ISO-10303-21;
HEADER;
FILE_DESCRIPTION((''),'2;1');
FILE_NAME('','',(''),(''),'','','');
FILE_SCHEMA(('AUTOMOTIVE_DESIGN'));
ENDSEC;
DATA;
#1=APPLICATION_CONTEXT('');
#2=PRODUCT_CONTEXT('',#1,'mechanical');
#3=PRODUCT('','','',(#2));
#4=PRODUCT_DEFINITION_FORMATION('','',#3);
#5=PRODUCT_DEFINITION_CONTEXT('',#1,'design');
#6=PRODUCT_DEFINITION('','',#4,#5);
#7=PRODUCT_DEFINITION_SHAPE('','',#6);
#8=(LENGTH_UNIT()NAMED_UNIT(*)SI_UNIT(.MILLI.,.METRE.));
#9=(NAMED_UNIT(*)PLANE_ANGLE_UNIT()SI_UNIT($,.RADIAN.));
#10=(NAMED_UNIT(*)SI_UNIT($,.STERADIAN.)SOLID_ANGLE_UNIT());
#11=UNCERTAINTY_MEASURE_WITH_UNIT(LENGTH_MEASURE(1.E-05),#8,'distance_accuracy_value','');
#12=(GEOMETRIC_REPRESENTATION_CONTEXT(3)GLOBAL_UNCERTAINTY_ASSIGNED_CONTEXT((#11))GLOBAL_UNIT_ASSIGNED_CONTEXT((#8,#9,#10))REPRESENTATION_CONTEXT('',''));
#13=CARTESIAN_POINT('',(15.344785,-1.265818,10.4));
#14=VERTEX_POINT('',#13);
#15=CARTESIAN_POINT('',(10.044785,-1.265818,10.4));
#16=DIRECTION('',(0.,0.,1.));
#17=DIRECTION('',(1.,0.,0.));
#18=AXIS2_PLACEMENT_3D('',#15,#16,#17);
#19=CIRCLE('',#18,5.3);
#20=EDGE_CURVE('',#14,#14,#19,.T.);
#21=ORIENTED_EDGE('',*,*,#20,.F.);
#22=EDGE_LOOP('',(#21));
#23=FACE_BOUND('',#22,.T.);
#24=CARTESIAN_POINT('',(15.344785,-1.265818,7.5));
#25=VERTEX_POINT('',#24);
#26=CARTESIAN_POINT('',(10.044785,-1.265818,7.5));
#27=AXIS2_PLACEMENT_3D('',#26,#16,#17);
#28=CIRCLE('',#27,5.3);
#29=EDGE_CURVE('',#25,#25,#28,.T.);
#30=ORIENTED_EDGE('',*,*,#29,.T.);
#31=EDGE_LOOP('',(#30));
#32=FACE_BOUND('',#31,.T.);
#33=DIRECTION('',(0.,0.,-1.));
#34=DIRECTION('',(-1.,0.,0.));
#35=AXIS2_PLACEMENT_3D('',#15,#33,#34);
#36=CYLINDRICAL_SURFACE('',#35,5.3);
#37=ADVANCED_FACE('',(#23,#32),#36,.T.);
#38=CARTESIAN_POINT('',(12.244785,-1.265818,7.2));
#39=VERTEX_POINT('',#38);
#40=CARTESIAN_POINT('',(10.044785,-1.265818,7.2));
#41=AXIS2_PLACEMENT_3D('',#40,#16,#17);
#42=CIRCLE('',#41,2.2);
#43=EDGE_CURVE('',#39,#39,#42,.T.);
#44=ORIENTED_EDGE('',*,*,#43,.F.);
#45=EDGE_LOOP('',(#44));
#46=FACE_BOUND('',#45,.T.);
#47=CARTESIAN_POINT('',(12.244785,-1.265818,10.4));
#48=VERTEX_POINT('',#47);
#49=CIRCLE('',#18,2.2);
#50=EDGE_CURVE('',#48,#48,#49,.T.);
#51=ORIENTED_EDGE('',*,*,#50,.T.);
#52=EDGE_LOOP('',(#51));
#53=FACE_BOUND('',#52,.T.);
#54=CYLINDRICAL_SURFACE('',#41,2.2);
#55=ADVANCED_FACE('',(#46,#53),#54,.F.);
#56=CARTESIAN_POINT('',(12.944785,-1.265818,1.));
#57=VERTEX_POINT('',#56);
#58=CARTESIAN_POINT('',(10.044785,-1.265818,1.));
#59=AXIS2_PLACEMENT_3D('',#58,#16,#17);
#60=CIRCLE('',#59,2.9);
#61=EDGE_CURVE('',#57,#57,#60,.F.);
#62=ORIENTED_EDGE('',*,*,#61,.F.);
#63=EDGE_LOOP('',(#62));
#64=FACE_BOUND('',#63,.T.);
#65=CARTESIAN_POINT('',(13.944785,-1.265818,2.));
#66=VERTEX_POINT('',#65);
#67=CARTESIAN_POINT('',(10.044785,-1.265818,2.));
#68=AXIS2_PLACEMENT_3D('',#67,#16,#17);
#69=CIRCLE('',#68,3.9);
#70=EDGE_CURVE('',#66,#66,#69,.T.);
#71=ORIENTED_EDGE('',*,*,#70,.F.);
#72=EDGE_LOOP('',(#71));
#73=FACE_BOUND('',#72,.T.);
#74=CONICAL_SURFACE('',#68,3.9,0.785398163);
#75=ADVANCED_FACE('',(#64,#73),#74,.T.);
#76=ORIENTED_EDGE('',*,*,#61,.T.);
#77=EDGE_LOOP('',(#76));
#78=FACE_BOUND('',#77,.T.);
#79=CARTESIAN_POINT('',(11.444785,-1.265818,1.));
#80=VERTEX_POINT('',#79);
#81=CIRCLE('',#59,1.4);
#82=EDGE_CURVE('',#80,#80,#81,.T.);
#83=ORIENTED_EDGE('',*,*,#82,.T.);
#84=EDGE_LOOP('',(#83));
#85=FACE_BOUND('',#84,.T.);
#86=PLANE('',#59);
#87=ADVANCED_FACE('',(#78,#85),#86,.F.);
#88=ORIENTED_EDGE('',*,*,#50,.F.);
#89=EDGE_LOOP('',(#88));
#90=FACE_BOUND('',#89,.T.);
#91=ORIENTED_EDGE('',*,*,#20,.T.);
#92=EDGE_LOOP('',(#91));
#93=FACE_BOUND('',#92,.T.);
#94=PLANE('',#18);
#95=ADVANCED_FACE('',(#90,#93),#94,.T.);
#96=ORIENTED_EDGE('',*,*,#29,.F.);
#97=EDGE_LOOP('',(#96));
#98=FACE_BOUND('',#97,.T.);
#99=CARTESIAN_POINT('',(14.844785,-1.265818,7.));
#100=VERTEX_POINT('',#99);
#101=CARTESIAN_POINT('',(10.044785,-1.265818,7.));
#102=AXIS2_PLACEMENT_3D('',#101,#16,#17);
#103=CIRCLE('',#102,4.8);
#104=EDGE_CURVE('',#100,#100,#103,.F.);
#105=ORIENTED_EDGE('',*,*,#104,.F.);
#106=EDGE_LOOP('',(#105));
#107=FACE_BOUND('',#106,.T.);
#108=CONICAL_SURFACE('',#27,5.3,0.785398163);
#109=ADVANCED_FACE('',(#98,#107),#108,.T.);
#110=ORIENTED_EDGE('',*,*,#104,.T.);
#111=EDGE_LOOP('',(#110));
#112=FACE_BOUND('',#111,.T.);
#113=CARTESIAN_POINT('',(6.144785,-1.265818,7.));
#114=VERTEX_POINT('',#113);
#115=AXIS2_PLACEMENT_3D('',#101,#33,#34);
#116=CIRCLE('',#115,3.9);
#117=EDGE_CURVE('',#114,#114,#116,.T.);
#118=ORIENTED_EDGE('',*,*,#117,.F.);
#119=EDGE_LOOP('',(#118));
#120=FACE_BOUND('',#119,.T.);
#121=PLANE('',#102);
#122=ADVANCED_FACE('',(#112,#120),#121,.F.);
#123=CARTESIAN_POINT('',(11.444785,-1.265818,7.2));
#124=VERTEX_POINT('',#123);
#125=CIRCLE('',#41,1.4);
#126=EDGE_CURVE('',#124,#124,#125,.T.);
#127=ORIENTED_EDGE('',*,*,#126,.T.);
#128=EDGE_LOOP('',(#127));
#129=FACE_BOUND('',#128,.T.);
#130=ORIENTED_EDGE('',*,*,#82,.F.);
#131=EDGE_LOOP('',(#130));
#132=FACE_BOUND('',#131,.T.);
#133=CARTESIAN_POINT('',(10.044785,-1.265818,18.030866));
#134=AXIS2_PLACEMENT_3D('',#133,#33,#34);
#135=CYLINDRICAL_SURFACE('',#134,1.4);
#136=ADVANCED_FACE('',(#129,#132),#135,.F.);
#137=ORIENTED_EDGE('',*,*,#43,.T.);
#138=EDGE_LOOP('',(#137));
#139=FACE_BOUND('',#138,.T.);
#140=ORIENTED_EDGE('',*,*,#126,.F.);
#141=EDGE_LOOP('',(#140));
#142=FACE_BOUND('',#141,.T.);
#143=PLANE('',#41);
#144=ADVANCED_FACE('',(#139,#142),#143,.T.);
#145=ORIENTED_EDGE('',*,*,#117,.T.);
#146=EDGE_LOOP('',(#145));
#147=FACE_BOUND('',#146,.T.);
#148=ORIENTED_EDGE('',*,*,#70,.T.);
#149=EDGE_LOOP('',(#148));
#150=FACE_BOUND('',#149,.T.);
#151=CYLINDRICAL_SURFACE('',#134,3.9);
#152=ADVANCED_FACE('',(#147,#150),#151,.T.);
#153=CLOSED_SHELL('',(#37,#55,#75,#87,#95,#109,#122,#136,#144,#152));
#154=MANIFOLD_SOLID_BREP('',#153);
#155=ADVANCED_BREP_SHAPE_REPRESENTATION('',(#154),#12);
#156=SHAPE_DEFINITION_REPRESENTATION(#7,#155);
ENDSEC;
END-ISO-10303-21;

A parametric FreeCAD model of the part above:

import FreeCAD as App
import Part
import Sketcher
from FreeCAD import Vector
Q = App.Units.Quantity


def edges_at(feature, points):
    """Names of the edges that pass closest to the given points."""
    edges = feature.Shape.Edges
    near = lambda p: min(range(len(edges)), key=lambda i: edges[i].distToShape(Part.Vertex(*p))[0])
    return sorted({f"Edge{near(p) + 1}" for p in points})

doc = App.newDocument("Part")
body = doc.addObject("PartDesign::Body", "Body")

sketch1 = body.newObject("Sketcher::SketchObject", "Sketch")
sketch1.AttachmentSupport = (doc.getObject("XY_Plane"), [""])
sketch1.MapMode = "FlatFace"
sketch1.AttachmentOffset = App.Placement(Vector(0, 0, 1), App.Rotation())
sketch1.addGeometry([
    Part.Circle(Vector(10, -1.3, 0), Vector(0, 0, 1), 3.9),
    Part.Circle(Vector(10, -1.3, 0), Vector(0, 0, 1), 1.4),
], False)
sketch1.addConstraint([
    Sketcher.Constraint("Coincident", 1, 3, 0, 3),
    Sketcher.Constraint("Diameter", 0, Q("7.8 mm")),
    Sketcher.Constraint("Diameter", 1, Q("2.8 mm")),
    Sketcher.Constraint("DistanceY", 0, 3, -1, 1, Q("1.265818 mm")),
    Sketcher.Constraint("DistanceX", -1, 1, 0, 3, Q("10.044785 mm")),
])
pad1 = body.newObject("PartDesign::Pad", "Pad")
pad1.Profile = sketch1
pad1.Length = 6

sketch2 = body.newObject("Sketcher::SketchObject", "Sketch001")
sketch2.AttachmentSupport = (doc.getObject("XY_Plane"), [""])
sketch2.MapMode = "FlatFace"
sketch2.AttachmentOffset = App.Placement(Vector(0, 0, 7), App.Rotation())
sketch2.addGeometry([
    Part.Circle(Vector(10, -1.3, 0), Vector(0, 0, 1), 5.3),
    Part.Circle(Vector(10, -1.3, 0), Vector(0, 0, 1), 1.4),
], False)
sketch2.addConstraint([
    Sketcher.Constraint("Coincident", 1, 3, 0, 3),
    Sketcher.Constraint("Diameter", 0, Q("10.6 mm")),
    Sketcher.Constraint("Diameter", 1, Q("2.8 mm")),
    Sketcher.Constraint("DistanceY", 0, 3, -1, 1, Q("1.265818 mm")),
    Sketcher.Constraint("DistanceX", -1, 1, 0, 3, Q("10.044785 mm")),
])
pad2 = body.newObject("PartDesign::Pad", "Pad001")
pad2.Profile = sketch2
pad2.Length = 3.4
doc.recompute()

chamfer = body.newObject("PartDesign::Chamfer", "Chamfer")
chamfer.Base = (pad2, edges_at(pad2, [(4.745, -1.266, 7)]))
chamfer.Size = 0.5

sketch3 = body.newObject("Sketcher::SketchObject", "Sketch002")
sketch3.AttachmentSupport = (doc.getObject("XY_Plane"), [""])
sketch3.MapMode = "FlatFace"
sketch3.AttachmentOffset = App.Placement(Vector(0, 0, 10.4), App.Rotation())
sketch3.addGeometry(Part.Circle(Vector(10, -1.3, 0), Vector(0, 0, 1), 2.2), False)
sketch3.addConstraint([
    Sketcher.Constraint("Diameter", 0, Q("4.4 mm")),
    Sketcher.Constraint("DistanceY", 0, 3, -1, 1, Q("1.265818 mm")),
    Sketcher.Constraint("DistanceX", -1, 1, 0, 3, Q("10.044785 mm")),
])
pocket1 = body.newObject("PartDesign::Pocket", "Pocket")
pocket1.Profile = sketch3
pocket1.Length = 3.2
doc.recompute()

chamfer2 = body.newObject("PartDesign::Chamfer", "Chamfer001")
chamfer2.Base = (pocket1, edges_at(pocket1, [(13.945, -1.266, 1)]))
chamfer2.Size = 1

doc.recompute()
